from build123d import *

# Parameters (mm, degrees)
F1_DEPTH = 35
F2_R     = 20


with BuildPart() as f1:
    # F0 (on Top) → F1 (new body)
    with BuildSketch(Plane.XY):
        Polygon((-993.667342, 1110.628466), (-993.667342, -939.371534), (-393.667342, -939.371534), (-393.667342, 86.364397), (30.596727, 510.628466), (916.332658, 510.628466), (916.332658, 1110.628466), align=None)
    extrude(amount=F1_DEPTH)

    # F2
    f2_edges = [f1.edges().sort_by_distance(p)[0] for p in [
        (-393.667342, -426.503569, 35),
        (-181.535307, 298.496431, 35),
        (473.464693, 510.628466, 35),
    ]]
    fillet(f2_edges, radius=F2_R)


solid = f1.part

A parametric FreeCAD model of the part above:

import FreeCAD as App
import Part
import Sketcher

V = App.Vector
Q = App.Units.Quantity


def edges_at(feature, points):
    """Names of the edges that pass closest to the given points."""
    edges = feature.Shape.Edges
    near = lambda p: min(range(len(edges)), key=lambda i: edges[i].distToShape(Part.Vertex(*p))[0])
    return sorted({f"Edge{near(p) + 1}" for p in points})


def add_polygon(sketch, points):
    """Adds a closed chain of lines whose ends are joined by coincident constraints."""
    first, n = sketch.GeometryCount, len(points)
    for a, b in zip(points, points[1:] + points[:1]):
        sketch.addGeometry(Part.LineSegment(App.Vector(*a, 0), App.Vector(*b, 0)), False)
    for i in range(n):
        sketch.addConstraint(Sketcher.Constraint("Coincident", first + i, 2, first + (i + 1) % n, 1))

doc = App.newDocument("Part")
params = doc.addObject("Spreadsheet::Sheet", "Params")
for row, (alias, value) in enumerate([
    ("sketch1_width", "600 mm"),
    ("sketch1_width2", "1910 mm"),
    ("sketch1_height", "2050 mm"),
    ("sketch1_length", "600 mm"),
    ("pad1_length", "35 mm"),
    ("fillet_radius", "20 mm"),
], start=1):
    params.set(f"A{row}", alias)
    params.set(f"B{row}", "=" + value)
    params.setAlias(f"B{row}", alias)

body = doc.addObject("PartDesign::Body", "Body")

# Sketch on XY plane
sketch1 = doc.addObject("Sketcher::SketchObject", "Sketch")
body.addObject(sketch1)
sketch1.AttachmentSupport = (doc.XY_Plane, [""])
sketch1.MapMode = "FlatFace"
add_polygon(sketch1, [(-994, 1111), (-994, -939), (-394, -939), (-394, 86), (31, 511), (916, 511), (916, 1111)])  # lines 0-6
sketch1.addConstraint([
    Sketcher.Constraint("Vertical", 0),
    Sketcher.Constraint("Horizontal", 1),
    Sketcher.Constraint("Vertical", 2),
    Sketcher.Constraint("Horizontal", 4),
    Sketcher.Constraint("Vertical", 5),
    Sketcher.Constraint("Horizontal", 6),
    Sketcher.Constraint("Equal", 1, 5),
    Sketcher.Constraint("DistanceX", 1, 1, 1, 2, Q("600 mm")),
    Sketcher.Constraint("DistanceX", 6, 2, 6, 1, Q("1910 mm")),
    Sketcher.Constraint("DistanceY", 0, 2, 0, 1, Q("2050 mm")),
    Sketcher.Constraint("Angle", 3, Q("45 deg")),
    Sketcher.Constraint("Distance", 3, Q("600 mm")),
    Sketcher.Constraint("DistanceX", 0, 2, -1, 1, Q("993.667342 mm")),
    Sketcher.Constraint("DistanceY", 0, 2, -1, 1, Q("939.371534 mm")),
])
sketch1.setExpression("Constraints[14]", "Params.sketch1_width")
sketch1.setExpression("Constraints[15]", "Params.sketch1_width2")
sketch1.setExpression("Constraints[16]", "Params.sketch1_height")
sketch1.setExpression("Constraints[18]", "Params.sketch1_length")
pad1 = doc.addObject("PartDesign::Pad", "Pad")
body.addObject(pad1)
pad1.Profile = sketch1
pad1.setExpression("Length", "Params.pad1_length")
doc.recompute()

fillet = doc.addObject("PartDesign::Fillet", "Fillet")
body.addObject(fillet)
fillet.Base = (pad1, edges_at(pad1, [(-393.667, -426.504, 35), (-181.535, 298.496, 35), (473.465, 510.628, 35)]))
fillet.setExpression("Radius", "Params.fillet_radius")

doc.recompute()
